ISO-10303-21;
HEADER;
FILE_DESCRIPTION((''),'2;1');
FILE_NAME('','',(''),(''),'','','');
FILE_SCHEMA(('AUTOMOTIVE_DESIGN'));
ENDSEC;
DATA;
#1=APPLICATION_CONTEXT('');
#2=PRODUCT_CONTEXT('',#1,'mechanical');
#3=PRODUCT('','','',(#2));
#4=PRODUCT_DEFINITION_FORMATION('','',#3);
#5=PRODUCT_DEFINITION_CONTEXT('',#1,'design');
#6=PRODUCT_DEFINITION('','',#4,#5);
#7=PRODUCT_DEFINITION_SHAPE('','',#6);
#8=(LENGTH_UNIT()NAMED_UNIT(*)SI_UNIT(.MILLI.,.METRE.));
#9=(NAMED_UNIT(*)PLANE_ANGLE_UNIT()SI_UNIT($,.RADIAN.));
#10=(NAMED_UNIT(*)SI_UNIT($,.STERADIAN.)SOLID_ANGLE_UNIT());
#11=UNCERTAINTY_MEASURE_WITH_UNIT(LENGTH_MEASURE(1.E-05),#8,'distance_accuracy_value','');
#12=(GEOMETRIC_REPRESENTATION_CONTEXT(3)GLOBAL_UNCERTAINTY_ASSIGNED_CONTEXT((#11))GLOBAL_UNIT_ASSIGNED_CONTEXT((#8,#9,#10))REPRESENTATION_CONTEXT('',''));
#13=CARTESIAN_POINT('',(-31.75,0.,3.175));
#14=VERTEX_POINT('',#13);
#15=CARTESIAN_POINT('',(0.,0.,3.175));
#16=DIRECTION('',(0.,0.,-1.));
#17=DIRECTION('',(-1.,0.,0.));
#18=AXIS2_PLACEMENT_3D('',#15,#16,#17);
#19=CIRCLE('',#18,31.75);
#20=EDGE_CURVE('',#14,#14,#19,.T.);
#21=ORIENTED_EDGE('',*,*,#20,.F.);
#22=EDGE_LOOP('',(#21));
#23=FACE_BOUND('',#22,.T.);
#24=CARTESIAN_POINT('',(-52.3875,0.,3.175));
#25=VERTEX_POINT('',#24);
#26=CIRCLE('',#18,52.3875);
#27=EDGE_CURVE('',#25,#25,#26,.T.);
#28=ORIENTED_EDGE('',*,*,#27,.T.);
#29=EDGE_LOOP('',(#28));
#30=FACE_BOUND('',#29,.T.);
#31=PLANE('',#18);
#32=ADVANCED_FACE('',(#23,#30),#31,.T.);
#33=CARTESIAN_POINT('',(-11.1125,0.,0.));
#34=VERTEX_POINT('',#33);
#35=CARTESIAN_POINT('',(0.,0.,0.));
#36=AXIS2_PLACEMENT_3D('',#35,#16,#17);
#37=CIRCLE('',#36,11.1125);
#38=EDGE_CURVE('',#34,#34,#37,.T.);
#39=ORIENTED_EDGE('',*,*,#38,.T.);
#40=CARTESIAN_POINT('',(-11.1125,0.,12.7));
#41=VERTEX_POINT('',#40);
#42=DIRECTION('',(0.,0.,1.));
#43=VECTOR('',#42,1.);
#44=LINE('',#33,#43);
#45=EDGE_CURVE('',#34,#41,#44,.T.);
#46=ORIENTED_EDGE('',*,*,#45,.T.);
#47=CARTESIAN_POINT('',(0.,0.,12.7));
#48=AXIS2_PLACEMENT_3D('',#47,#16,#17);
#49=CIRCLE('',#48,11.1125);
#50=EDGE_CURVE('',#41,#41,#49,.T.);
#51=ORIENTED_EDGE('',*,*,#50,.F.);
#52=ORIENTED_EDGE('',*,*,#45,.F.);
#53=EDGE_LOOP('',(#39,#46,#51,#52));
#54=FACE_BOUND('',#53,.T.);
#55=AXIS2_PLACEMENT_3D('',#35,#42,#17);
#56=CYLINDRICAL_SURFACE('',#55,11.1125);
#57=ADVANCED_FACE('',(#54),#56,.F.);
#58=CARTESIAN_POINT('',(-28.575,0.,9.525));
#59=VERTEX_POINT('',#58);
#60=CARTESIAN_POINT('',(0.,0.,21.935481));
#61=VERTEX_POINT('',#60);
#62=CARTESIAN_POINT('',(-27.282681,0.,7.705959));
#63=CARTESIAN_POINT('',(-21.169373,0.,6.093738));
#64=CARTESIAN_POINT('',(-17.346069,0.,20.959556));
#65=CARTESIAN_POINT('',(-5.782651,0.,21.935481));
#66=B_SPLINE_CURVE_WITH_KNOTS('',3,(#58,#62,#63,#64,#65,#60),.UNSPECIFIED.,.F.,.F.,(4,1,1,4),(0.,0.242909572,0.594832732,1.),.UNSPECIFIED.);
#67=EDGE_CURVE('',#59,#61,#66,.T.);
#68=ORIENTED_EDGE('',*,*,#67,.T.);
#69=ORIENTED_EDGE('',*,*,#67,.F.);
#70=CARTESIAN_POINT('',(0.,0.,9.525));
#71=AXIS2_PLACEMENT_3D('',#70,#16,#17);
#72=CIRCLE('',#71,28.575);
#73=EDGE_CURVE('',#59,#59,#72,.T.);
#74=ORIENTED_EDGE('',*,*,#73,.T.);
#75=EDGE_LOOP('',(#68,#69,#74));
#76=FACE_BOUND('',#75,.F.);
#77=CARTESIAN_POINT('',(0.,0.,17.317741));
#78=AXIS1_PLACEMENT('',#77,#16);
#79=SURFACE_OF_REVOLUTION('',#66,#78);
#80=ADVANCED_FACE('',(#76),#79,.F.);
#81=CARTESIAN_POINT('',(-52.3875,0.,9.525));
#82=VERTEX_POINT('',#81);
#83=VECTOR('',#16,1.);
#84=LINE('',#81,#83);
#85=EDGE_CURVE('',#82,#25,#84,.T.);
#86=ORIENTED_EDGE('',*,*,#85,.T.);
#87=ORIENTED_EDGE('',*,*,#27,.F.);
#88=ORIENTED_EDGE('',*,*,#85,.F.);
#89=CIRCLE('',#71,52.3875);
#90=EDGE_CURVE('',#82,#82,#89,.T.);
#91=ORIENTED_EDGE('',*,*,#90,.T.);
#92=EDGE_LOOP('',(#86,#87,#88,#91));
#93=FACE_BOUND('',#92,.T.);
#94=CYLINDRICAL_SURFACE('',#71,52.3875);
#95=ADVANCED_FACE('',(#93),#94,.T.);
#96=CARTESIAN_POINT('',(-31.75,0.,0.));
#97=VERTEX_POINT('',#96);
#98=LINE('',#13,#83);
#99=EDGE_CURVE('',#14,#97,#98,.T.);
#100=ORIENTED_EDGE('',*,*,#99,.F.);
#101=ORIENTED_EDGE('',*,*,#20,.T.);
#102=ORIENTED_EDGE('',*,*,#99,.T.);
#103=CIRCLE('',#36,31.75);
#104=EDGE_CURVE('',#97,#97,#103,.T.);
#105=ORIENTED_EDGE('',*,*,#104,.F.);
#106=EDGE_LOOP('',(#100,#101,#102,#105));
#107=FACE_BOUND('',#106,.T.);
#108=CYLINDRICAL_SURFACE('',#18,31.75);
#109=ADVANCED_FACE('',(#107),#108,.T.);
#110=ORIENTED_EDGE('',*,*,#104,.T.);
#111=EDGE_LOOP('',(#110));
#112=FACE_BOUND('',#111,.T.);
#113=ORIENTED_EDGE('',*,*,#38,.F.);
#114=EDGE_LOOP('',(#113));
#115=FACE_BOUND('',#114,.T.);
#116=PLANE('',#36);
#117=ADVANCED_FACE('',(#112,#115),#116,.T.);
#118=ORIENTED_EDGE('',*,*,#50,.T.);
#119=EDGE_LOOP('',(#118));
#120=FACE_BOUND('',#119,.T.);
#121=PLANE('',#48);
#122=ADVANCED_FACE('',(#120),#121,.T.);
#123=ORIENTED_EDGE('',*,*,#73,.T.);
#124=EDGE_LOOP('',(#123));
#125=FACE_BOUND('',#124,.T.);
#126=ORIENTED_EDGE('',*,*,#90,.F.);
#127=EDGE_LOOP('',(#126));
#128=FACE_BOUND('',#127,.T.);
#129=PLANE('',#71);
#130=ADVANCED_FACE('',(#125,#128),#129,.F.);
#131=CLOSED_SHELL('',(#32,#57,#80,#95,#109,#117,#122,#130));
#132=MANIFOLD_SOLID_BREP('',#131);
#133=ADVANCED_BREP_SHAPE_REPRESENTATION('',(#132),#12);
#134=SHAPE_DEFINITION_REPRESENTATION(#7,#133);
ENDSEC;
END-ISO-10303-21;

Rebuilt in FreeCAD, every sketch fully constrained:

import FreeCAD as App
import Part
import Sketcher
from FreeCAD import Vector
Q = App.Units.Quantity

doc = App.newDocument("Part")
body = doc.addObject("PartDesign::Body", "Body")

# Sketch on XZ plane
sketch1 = body.newObject("Sketcher::SketchObject", "Sketch")
sketch1.AttachmentSupport = (doc.getObject("XZ_Plane"), [""])
sketch1.MapMode = "FlatFace"
sketch1.addGeometry([
    Part.LineSegment(Vector(-11.1125, 12.7, 0), Vector(0, 12.7, 0)),  # 0
    Part.LineSegment(Vector(0, 12.7, 0), Vector(0, 21.935481, 0)),  # 1
    Part.BSplineCurve([Vector(-28.575, 9.525, 0), Vector(-27.282681, 7.705959, 0), Vector(-21.169373, 6.093738, 0), Vector(-17.346069, 20.959556, 0), Vector(-5.782651, 21.935481, 0), Vector(0, 21.935481, 0)], [4, 1, 1, 4], [0, 0.242909572, 0.594832732, 1], False, 3, [1, 1, 1, 1, 1, 1], False),  # 2
    Part.LineSegment(Vector(-28.575, 9.525, 0), Vector(-52.3875, 9.525, 0)),  # 3
    Part.LineSegment(Vector(-52.3875, 9.525, 0), Vector(-52.3875, 3.175, 0)),  # 4
    Part.LineSegment(Vector(-52.3875, 3.175, 0), Vector(-31.75, 3.175, 0)),  # 5
    Part.LineSegment(Vector(-31.75, 3.175, 0), Vector(-31.75, 0, 0)),  # 6
    Part.LineSegment(Vector(-31.75, 0, 0), Vector(-11.1125, 0, 0)),  # 7
    Part.LineSegment(Vector(-11.1125, 0, 0), Vector(-11.1125, 12.7, 0)),  # 8
], False)
sketch1.addConstraint([
    Sketcher.Constraint("Block", 2),
    Sketcher.Constraint("Coincident", 0, 2, 1, 1),
    Sketcher.Constraint("Coincident", 1, 2, 2, 2),
    Sketcher.Constraint("Coincident", 2, 1, 3, 1),
    Sketcher.Constraint("Coincident", 3, 2, 4, 1),
    Sketcher.Constraint("Coincident", 4, 2, 5, 1),
    Sketcher.Constraint("Coincident", 5, 2, 6, 1),
    Sketcher.Constraint("Coincident", 6, 2, 7, 1),
    Sketcher.Constraint("Coincident", 7, 2, 8, 1),
    Sketcher.Constraint("Coincident", 8, 2, 0, 1),
    Sketcher.Constraint("Horizontal", 0),
    Sketcher.Constraint("Vertical", 1),
    Sketcher.Constraint("Horizontal", 3),
    Sketcher.Constraint("Vertical", 4),
    Sketcher.Constraint("Horizontal", 5),
    Sketcher.Constraint("Vertical", 6),
    Sketcher.Constraint("Horizontal", 7),
    Sketcher.Constraint("Vertical", 8),
    Sketcher.Constraint("PointOnObject", 6, 2, -1),
    Sketcher.Constraint("Equal", 5, 7),
    Sketcher.Constraint("DistanceY", 8, 1, 8, 2, Q("0.5 in")),
    Sketcher.Constraint("DistanceY", 4, 2, 4, 1, Q("0.25 in")),
    Sketcher.Constraint("DistanceX", 0, 1, 0, 2, Q("0.4375 in")),
    Sketcher.Constraint("DistanceX", 3, 2, 3, 1, Q("0.9375 in")),
])
revolution = body.newObject("PartDesign::Revolution", "Revolution")
revolution.Profile = sketch1
revolution.ReferenceAxis = (sketch1, ["V_Axis"])
revolution.Angle = 360

doc.recompute()
